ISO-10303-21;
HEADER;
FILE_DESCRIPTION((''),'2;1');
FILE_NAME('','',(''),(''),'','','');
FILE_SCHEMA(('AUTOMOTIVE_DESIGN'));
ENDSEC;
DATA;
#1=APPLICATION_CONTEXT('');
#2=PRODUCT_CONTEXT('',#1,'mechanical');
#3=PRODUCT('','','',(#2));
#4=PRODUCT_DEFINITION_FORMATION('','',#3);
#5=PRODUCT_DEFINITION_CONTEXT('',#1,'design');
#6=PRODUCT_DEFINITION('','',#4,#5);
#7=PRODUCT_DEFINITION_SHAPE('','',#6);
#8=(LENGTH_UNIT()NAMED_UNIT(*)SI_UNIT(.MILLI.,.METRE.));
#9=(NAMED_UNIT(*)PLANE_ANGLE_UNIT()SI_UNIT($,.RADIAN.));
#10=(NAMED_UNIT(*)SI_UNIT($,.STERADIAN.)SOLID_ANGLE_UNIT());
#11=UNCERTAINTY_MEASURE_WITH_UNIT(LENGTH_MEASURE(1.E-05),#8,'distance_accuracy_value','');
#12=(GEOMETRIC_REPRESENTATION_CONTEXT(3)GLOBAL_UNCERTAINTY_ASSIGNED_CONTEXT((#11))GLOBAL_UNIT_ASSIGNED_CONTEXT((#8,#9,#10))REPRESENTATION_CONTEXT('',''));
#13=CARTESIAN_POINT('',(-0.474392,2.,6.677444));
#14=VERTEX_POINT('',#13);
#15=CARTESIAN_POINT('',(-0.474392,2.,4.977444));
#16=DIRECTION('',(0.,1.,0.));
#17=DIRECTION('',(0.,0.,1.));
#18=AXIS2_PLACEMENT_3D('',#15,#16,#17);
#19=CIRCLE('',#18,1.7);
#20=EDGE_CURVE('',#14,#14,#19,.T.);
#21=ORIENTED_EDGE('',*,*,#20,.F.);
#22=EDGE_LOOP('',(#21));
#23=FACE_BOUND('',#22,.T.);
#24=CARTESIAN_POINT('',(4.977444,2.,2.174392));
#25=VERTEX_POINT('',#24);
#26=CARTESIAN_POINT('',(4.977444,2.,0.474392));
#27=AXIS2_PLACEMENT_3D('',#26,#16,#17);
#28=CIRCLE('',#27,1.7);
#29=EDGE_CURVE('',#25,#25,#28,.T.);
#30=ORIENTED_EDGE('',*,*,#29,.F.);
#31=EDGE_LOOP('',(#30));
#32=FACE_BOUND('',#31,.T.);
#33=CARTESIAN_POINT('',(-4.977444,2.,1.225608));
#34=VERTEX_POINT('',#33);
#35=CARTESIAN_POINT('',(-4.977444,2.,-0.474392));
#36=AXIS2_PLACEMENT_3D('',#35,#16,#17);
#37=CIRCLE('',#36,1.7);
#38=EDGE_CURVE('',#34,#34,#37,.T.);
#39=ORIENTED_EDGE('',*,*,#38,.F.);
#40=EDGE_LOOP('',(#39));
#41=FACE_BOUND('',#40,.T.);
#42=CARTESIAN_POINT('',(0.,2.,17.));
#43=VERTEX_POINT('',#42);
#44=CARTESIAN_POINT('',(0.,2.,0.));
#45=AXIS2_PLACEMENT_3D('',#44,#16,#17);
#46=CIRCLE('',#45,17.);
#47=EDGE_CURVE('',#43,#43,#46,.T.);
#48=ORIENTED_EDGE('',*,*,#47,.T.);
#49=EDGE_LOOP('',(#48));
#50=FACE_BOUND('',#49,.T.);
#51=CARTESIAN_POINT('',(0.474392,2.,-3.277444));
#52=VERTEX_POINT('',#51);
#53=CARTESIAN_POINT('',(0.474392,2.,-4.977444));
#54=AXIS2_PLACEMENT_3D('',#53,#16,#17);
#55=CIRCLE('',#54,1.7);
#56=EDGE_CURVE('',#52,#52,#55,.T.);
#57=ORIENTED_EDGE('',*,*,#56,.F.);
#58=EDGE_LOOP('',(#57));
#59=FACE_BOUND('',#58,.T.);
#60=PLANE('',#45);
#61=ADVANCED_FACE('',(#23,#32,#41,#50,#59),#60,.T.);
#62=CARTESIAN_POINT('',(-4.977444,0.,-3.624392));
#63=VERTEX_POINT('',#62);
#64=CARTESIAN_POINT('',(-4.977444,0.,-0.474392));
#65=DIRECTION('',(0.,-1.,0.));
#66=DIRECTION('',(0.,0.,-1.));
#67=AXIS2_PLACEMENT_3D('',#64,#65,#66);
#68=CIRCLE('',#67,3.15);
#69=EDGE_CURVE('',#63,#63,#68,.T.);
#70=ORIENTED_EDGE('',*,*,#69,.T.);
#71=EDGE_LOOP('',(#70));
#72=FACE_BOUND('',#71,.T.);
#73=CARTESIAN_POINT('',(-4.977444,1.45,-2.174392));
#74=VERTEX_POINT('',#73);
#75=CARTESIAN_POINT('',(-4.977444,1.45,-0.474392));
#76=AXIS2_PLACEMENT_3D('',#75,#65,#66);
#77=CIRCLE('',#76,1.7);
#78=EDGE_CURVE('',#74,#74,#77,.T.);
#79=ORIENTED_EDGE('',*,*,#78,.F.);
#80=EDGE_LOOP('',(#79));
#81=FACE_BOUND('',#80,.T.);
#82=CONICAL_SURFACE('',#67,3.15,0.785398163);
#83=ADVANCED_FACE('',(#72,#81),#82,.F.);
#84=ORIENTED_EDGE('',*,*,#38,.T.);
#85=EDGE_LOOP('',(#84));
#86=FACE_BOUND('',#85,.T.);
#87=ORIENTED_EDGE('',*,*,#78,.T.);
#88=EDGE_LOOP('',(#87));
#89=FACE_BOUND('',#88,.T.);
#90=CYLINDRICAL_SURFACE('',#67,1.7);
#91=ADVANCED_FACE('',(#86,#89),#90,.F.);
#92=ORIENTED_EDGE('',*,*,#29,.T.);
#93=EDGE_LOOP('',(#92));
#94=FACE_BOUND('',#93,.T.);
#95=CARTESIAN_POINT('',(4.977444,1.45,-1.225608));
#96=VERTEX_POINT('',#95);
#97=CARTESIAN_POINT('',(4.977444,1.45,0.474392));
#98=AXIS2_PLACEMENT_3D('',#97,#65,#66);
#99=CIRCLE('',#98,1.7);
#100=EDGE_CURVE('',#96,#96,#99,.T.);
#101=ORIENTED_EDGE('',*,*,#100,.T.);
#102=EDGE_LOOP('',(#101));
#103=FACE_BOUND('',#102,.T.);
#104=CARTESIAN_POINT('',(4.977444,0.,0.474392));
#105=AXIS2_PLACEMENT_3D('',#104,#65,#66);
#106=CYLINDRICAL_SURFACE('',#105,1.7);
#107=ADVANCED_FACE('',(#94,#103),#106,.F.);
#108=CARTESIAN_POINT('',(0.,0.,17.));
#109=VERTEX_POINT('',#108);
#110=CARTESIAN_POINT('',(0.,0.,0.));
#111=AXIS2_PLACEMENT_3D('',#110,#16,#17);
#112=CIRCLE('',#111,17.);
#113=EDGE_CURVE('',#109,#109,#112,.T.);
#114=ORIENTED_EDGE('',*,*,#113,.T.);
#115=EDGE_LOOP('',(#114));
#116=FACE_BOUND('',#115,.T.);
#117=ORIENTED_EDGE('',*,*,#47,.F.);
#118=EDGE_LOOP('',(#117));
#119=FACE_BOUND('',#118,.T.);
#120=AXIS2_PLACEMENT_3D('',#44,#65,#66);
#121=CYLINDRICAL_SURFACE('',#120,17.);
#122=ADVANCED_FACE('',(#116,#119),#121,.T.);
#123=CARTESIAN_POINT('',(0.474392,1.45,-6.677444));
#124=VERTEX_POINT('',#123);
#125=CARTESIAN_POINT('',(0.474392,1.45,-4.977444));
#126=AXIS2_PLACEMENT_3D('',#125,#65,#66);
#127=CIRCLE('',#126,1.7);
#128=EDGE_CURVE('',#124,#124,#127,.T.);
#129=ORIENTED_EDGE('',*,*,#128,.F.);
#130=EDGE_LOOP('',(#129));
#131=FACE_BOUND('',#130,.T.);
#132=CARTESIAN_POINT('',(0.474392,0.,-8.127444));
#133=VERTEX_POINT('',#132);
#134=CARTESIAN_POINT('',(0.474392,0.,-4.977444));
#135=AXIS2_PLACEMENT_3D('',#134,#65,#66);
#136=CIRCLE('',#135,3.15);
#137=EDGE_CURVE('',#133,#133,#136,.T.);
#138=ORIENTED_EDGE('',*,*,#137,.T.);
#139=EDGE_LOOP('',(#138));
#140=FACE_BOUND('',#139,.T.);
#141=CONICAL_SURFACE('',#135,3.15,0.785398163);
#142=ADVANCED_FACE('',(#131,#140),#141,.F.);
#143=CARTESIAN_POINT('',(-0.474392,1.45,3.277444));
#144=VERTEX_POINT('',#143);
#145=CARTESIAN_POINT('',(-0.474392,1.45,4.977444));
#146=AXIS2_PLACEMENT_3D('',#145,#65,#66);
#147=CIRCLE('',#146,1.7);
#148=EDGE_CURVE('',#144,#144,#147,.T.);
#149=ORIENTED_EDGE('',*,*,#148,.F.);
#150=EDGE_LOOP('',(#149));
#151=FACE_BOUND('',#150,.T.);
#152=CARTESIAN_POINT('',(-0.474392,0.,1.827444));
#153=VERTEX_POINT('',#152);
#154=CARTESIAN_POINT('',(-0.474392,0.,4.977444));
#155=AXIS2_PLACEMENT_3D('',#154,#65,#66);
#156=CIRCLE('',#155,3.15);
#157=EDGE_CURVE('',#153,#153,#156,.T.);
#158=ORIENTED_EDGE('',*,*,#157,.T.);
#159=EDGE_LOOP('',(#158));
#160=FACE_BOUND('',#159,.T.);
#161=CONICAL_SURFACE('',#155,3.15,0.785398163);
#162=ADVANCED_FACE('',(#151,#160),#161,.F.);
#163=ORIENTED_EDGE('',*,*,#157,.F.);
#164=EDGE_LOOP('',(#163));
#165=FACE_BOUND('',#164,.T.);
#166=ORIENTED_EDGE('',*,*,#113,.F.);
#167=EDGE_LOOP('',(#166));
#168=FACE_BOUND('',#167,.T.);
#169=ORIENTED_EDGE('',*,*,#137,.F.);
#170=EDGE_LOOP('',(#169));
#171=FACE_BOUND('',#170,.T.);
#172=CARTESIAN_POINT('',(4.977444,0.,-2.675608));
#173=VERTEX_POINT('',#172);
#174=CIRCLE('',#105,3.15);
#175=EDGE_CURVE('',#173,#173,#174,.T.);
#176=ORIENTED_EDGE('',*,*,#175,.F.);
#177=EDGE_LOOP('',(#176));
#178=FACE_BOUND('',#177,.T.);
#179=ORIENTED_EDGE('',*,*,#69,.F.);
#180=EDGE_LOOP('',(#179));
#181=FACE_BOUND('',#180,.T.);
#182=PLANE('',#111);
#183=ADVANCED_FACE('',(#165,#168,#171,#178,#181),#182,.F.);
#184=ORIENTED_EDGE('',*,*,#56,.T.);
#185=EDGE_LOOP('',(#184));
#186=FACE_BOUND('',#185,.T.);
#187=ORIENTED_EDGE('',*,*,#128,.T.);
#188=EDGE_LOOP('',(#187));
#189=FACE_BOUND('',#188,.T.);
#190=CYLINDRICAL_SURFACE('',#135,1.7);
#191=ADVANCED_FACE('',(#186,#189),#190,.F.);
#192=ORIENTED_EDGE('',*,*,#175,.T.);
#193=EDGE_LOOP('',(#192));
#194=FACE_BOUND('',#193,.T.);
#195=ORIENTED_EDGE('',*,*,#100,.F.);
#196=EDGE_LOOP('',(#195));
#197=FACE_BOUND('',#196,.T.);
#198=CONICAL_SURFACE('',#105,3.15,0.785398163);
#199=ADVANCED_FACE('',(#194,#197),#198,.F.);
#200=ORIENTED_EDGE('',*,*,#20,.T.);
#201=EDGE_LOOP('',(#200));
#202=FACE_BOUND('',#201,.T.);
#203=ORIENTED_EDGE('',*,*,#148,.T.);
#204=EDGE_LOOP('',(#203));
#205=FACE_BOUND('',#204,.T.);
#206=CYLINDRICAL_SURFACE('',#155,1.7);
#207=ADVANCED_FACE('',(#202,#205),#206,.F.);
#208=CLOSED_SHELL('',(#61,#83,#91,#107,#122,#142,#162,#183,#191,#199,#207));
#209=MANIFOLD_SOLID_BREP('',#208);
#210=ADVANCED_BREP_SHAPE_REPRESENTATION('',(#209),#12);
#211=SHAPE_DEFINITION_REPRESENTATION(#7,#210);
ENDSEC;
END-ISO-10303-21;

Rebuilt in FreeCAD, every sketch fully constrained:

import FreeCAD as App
import Part
import Sketcher

V = App.Vector
Q = App.Units.Quantity


def add_polygon(sketch, points):
    """Adds a closed chain of lines whose ends are joined by coincident constraints."""
    first, n = sketch.GeometryCount, len(points)
    for a, b in zip(points, points[1:] + points[:1]):
        sketch.addGeometry(Part.LineSegment(App.Vector(*a, 0), App.Vector(*b, 0)), False)
    for i in range(n):
        sketch.addConstraint(Sketcher.Constraint("Coincident", first + i, 2, first + (i + 1) % n, 1))

doc = App.newDocument("Part")
params = doc.addObject("Spreadsheet::Sheet", "Params")
for row, (alias, value) in enumerate([
    ("sketch1_diameter", "34 mm"),
    ("pad1_length", "2 mm"),
    ("sketch2_width", "2 mm"),
    ("sketch2_height", "1.7 mm"),
    ("sketch2_width2", "0.55 mm"),
    ("groove_angle", "360 deg"),
    ("linearpattern_pitch", "7.071068 mm"),
    ("linearpattern2_pitch", "10 mm"),
    ("linearpattern3_pitch", "7.071068 mm"),
], start=1):
    params.set(f"A{row}", alias)
    params.set(f"B{row}", "=" + value)
    params.setAlias(f"B{row}", alias)

body = doc.addObject("PartDesign::Body", "Body")

# Sketch on XZ plane
sketch1 = body.newObject("Sketcher::SketchObject", "Sketch")
sketch1.AttachmentSupport = (doc.getObject("XZ_Plane"), [""])
sketch1.MapMode = "FlatFace"
sketch1.addGeometry(Part.Circle(V(0, 0, 0), V(0, 0, 1), 17), False)
sketch1.addConstraint([
    Sketcher.Constraint("Coincident", 0, 3, -1, 1),
    Sketcher.Constraint("Diameter", 0, 34.0),
])
sketch1.setExpression("Constraints[1]", "Params.sketch1_diameter")
pad1 = body.newObject("PartDesign::Pad", "Pad")
pad1.Profile = sketch1
pad1.setExpression("Length", "Params.pad1_length")
pad1.Reversed = True

# Sketch on YZ plane
sketch2 = body.newObject("Sketcher::SketchObject", "Sketch001")
sketch2.AttachmentSupport = (doc.getObject("YZ_Plane"), [""])
sketch2.MapMode = "FlatFace"
sketch2.AttachmentOffset = App.Placement(V(0, 0, -4.977444), App.Rotation())
add_polygon(sketch2, [(2, -0.5), (0, -0.5), (0, -3.6), (1.4, -2.2), (2, -2.2)])  # lines 0-4
sketch2.addGeometry(Part.LineSegment(V(0, -0.5, 0), V(2, -0.5, 0)), True)  # axis
sketch2.addConstraint([
    Sketcher.Constraint("Horizontal", 0),
    Sketcher.Constraint("Vertical", 1),
    Sketcher.Constraint("Horizontal", 3),
    Sketcher.Constraint("Vertical", 4),
    Sketcher.Constraint("Horizontal", 5),
    Sketcher.Constraint("Coincident", 5, 1, 0, 2),
    Sketcher.Constraint("PointOnObject", 0, 2, -2),
    Sketcher.Constraint("Vertical", 3, 2, 5, 2),
    Sketcher.Constraint("DistanceX", 0, 2, 0, 1, 2.0),
    Sketcher.Constraint("Angle", 2, Q("45 deg")),
    Sketcher.Constraint("DistanceY", 4, 1, 4, 2, 1.7),
    Sketcher.Constraint("DistanceX", 3, 1, 3, 2, 0.55),
    Sketcher.Constraint("DistanceY", 0, 2, -1, 1, 0.474392),
])
sketch2.setExpression("Constraints[13]", "Params.sketch2_width")
sketch2.setExpression("Constraints[15]", "Params.sketch2_height")
sketch2.setExpression("Constraints[16]", "Params.sketch2_width2")
groove = body.newObject("PartDesign::Groove", "Groove")
groove.Profile = sketch2
groove.ReferenceAxis = (sketch2, ["Axis0"])
groove.setExpression("Angle", "Params.groove_angle")
doc.recompute()

datumline = body.newObject("PartDesign::Line", "DatumLine")
datumline.Placement = App.Placement(V(0, 0, 0), App.Rotation(V(0, 0, 1), V(0.771006122, 0, -0.636827731)))
linearpattern = body.newObject("PartDesign::LinearPattern", "LinearPattern")
linearpattern.Originals = [groove]
linearpattern.Direction = (datumline, [""])
linearpattern.Mode = "offset"
linearpattern.setExpression("Offset", "Params.linearpattern_pitch")
linearpattern.Occurrences = 2
body.Tip = linearpattern
doc.recompute()

datumline2 = body.newObject("PartDesign::Line", "DatumLine001")
datumline2.Placement = App.Placement(V(0, 0, 0), App.Rotation(V(0, 0, 1), V(0.995488865, 0, 0.09487845)))
linearpattern2 = body.newObject("PartDesign::LinearPattern", "LinearPattern001")
linearpattern2.Originals = [groove]
linearpattern2.Direction = (datumline2, [""])
linearpattern2.Mode = "offset"
linearpattern2.setExpression("Offset", "Params.linearpattern2_pitch")
linearpattern2.Occurrences = 2
body.Tip = linearpattern2
doc.recompute()

datumline3 = body.newObject("PartDesign::Line", "DatumLine002")
datumline3.Placement = App.Placement(V(0, 0, 0), App.Rotation(V(0, 0, 1), V(0.636827731, 0, 0.771006122)))
linearpattern3 = body.newObject("PartDesign::LinearPattern", "LinearPattern002")
linearpattern3.Originals = [groove]
linearpattern3.Direction = (datumline3, [""])
linearpattern3.Mode = "offset"
linearpattern3.setExpression("Offset", "Params.linearpattern3_pitch")
linearpattern3.Occurrences = 2
body.Tip = linearpattern3

doc.recompute()
